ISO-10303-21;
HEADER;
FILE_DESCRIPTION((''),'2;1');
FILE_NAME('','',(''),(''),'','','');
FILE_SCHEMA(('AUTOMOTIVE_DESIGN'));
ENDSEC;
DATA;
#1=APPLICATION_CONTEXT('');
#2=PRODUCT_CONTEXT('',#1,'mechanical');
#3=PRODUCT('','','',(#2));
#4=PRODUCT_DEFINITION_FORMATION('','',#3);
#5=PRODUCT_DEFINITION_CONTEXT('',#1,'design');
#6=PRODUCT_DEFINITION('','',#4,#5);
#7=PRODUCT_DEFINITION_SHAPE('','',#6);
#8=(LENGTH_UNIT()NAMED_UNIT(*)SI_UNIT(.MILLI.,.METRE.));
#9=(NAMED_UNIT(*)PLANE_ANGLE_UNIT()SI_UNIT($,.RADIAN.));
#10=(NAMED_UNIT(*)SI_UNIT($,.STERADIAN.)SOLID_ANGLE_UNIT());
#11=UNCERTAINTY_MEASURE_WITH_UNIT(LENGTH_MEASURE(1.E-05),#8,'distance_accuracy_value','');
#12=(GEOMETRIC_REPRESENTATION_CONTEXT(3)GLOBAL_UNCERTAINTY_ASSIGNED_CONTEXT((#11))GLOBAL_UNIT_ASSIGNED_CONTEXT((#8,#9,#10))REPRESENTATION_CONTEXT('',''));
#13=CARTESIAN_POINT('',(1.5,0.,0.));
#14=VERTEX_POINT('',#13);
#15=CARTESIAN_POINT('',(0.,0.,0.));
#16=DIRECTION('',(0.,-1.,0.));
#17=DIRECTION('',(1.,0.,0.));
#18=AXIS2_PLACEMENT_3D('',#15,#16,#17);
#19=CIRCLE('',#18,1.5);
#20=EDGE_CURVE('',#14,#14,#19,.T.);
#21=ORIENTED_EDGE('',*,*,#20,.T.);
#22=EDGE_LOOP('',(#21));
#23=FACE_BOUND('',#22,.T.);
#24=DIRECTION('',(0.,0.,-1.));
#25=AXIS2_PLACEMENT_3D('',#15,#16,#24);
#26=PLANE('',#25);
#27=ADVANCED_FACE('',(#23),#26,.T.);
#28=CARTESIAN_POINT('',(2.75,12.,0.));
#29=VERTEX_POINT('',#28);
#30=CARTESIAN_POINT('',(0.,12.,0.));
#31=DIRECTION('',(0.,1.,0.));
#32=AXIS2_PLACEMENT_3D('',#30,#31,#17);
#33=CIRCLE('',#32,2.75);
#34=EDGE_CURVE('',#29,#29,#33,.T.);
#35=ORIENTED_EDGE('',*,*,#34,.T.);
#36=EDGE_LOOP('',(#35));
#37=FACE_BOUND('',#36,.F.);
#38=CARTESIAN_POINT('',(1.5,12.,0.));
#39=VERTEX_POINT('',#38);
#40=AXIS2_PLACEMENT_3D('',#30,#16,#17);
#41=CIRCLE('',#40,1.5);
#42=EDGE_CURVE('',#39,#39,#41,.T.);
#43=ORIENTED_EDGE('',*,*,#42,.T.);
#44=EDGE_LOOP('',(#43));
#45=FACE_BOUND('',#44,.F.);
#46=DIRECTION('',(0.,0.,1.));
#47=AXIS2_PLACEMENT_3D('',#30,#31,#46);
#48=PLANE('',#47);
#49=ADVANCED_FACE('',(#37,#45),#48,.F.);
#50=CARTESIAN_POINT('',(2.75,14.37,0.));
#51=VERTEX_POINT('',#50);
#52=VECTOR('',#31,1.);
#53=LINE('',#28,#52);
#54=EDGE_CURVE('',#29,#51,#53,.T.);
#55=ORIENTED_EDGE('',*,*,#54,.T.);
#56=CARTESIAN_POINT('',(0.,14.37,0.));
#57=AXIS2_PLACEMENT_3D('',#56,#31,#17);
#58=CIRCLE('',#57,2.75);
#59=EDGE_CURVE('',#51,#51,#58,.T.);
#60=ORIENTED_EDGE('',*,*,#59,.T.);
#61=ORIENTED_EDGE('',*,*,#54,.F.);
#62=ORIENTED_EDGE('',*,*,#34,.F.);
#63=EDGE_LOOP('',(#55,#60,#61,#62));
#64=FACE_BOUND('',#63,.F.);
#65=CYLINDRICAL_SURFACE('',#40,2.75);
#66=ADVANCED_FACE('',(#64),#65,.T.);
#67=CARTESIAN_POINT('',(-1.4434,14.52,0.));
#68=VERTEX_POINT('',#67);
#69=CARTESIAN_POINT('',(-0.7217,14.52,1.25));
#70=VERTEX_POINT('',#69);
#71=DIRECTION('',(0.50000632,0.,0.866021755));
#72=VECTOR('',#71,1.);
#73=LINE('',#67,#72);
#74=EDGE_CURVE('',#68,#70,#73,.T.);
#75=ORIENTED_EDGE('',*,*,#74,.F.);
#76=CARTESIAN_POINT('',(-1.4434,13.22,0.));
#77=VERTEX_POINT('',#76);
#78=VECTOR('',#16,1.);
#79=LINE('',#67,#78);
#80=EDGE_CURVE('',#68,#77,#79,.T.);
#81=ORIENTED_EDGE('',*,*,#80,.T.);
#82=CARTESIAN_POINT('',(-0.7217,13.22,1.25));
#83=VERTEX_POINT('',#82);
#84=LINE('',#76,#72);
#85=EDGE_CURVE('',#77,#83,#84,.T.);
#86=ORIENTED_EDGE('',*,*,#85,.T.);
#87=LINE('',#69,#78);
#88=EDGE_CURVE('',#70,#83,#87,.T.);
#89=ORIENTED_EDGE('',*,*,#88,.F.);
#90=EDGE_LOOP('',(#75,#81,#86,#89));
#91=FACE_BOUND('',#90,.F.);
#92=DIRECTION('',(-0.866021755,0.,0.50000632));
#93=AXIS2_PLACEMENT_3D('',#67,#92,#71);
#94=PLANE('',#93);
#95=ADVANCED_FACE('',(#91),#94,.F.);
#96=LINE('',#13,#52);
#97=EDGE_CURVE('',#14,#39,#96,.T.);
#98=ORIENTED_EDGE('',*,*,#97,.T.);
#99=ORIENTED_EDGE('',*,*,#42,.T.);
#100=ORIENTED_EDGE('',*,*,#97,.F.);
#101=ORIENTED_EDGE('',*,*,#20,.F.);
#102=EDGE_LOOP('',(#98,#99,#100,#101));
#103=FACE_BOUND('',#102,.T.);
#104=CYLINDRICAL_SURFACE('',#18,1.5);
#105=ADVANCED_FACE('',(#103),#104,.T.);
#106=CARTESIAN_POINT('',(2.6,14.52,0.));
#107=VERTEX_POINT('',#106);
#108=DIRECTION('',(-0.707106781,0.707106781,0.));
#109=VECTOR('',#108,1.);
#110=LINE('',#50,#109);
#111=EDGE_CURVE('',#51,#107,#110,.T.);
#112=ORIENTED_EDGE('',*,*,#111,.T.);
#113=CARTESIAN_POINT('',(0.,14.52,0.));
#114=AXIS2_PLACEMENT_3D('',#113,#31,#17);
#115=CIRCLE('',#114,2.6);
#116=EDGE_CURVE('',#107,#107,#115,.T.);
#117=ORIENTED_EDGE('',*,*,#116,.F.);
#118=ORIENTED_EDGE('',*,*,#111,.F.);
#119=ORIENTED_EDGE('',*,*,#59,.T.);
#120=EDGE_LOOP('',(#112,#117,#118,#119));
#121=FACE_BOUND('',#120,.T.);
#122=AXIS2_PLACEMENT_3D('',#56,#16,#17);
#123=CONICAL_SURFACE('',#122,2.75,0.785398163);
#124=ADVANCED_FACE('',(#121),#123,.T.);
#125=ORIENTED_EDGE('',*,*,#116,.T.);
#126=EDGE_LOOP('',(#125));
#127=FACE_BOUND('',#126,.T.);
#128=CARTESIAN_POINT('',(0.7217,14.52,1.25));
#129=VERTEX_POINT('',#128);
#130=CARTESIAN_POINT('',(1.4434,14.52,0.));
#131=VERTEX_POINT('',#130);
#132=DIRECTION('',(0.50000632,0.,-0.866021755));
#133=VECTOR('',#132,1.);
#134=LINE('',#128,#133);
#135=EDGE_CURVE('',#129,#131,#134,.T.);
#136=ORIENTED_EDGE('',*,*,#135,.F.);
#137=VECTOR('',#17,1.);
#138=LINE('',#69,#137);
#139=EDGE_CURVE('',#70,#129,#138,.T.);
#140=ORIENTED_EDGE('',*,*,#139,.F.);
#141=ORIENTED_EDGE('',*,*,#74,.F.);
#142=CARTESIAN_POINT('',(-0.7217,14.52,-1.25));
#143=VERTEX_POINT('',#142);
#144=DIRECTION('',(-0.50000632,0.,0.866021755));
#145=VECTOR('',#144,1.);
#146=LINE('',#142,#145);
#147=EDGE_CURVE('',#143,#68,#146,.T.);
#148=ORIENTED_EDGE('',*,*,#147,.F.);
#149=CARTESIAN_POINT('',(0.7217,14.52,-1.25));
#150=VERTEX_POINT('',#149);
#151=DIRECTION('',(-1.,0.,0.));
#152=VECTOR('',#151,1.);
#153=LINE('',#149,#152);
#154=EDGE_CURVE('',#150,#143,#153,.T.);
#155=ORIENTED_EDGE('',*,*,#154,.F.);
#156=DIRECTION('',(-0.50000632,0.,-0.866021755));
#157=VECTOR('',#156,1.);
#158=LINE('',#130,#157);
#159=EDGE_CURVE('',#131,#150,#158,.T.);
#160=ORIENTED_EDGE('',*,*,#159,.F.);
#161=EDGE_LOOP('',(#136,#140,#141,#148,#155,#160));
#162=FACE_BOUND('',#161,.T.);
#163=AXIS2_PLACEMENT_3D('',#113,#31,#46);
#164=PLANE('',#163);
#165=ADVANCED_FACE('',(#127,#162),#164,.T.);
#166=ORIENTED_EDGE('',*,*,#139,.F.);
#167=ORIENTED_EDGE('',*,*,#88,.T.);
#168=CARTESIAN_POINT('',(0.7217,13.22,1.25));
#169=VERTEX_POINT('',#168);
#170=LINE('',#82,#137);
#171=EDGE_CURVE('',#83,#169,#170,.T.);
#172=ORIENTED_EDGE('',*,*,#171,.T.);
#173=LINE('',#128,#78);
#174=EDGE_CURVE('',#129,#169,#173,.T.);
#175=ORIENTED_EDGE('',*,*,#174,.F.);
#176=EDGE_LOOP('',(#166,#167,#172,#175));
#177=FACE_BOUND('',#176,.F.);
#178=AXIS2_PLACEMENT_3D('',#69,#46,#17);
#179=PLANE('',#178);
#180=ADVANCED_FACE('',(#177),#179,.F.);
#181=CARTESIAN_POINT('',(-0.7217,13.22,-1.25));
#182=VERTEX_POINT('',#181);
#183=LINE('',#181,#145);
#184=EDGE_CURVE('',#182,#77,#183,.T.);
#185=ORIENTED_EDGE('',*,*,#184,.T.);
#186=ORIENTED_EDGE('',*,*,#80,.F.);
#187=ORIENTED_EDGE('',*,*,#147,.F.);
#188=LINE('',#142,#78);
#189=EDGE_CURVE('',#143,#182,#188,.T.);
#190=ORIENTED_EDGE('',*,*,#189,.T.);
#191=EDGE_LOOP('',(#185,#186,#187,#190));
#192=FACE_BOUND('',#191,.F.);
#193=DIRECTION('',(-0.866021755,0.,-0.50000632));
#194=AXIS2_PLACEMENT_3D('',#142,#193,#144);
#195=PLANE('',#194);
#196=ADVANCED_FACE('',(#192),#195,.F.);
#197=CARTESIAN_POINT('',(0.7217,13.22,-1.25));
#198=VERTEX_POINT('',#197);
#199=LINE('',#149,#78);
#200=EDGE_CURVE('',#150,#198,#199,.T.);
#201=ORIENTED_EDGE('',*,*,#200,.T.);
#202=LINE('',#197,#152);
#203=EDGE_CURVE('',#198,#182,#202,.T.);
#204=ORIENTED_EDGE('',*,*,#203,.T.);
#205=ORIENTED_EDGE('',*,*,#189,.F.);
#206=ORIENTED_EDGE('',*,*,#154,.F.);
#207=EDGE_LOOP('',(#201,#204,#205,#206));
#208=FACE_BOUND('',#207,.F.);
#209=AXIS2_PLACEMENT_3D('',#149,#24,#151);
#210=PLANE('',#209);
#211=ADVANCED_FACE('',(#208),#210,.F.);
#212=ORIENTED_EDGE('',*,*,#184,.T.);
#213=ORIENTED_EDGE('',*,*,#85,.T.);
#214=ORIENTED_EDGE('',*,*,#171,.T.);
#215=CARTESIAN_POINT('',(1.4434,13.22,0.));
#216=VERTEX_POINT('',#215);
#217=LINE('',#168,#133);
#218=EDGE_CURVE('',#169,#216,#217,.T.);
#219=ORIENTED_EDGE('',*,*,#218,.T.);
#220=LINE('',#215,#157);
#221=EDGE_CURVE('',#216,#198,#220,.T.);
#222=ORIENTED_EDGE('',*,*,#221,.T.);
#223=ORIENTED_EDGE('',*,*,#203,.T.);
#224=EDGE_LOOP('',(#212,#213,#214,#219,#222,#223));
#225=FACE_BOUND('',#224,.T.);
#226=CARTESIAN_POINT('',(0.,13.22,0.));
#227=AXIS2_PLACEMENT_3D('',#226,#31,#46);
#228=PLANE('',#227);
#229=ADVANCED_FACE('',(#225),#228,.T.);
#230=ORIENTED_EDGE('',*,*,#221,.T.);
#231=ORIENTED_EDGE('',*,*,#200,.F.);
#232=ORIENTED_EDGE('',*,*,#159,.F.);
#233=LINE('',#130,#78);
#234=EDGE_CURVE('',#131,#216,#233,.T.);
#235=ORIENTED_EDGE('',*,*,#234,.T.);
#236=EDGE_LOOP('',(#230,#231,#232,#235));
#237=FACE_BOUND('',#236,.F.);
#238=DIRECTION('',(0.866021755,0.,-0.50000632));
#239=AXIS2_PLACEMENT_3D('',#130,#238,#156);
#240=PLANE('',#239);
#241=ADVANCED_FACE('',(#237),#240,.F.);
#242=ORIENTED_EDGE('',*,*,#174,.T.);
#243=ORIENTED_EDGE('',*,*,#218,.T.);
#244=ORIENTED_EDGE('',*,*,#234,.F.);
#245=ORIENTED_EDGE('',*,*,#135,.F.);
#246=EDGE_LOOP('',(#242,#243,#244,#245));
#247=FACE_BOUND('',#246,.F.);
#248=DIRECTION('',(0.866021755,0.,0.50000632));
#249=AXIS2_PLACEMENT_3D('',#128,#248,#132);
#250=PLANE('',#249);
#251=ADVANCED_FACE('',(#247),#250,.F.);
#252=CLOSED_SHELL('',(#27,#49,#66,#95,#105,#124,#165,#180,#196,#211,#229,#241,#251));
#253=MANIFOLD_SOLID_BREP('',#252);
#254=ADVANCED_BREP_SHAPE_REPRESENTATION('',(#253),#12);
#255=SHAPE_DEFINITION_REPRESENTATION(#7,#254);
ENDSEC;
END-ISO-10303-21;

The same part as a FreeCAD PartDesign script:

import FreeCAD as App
import Part
import Sketcher
Q = App.Units.Quantity


def edges_at(feature, points):
    """Names of the edges that pass closest to the given points."""
    edges = feature.Shape.Edges
    near = lambda p: min(range(len(edges)), key=lambda i: edges[i].distToShape(Part.Vertex(*p))[0])
    return sorted({f"Edge{near(p) + 1}" for p in points})


def add_polygon(sketch, points):
    """Adds a closed chain of lines whose ends are joined by coincident constraints."""
    first, n = sketch.GeometryCount, len(points)
    for a, b in zip(points, points[1:] + points[:1]):
        sketch.addGeometry(Part.LineSegment(App.Vector(*a, 0), App.Vector(*b, 0)), False)
    for i in range(n):
        sketch.addConstraint(Sketcher.Constraint("Coincident", first + i, 2, first + (i + 1) % n, 1))

doc = App.newDocument("Part")
body = doc.addObject("PartDesign::Body", "Body")

# Sketch on XZ plane
sketch1 = body.newObject("Sketcher::SketchObject", "Sketch")
sketch1.AttachmentSupport = (doc.getObject("XZ_Plane"), [""])
sketch1.MapMode = "FlatFace"
sketch1.addGeometry(Part.Circle(App.Vector(0, 0, 0), App.Vector(0, 0, 1), 1.5), False)
sketch1.addConstraint([
    Sketcher.Constraint("Coincident", 0, 3, -1, 1),
    Sketcher.Constraint("Diameter", 0, 3.0),
])
pad1 = body.newObject("PartDesign::Pad", "Pad")
pad1.Profile = sketch1
pad1.Length = 12
pad1.Reversed = True

# Sketch on XZ plane
sketch2 = body.newObject("Sketcher::SketchObject", "Sketch001")
sketch2.AttachmentSupport = (doc.getObject("XZ_Plane"), [""])
sketch2.MapMode = "FlatFace"
sketch2.AttachmentOffset = App.Placement(App.Vector(0, 0, -12), App.Rotation())
sketch2.addGeometry(Part.Circle(App.Vector(0, 0, 0), App.Vector(0, 0, 1), 2.8), False)
sketch2.addConstraint([
    Sketcher.Constraint("Coincident", 0, 3, -1, 1),
    Sketcher.Constraint("Diameter", 0, 5.5),
])
pad2 = body.newObject("PartDesign::Pad", "Pad001")
pad2.Profile = sketch2
pad2.Length = 2.52
pad2.Reversed = True

# Sketch on XZ plane
sketch3 = body.newObject("Sketcher::SketchObject", "Sketch002")
sketch3.AttachmentSupport = (doc.getObject("XZ_Plane"), [""])
sketch3.MapMode = "FlatFace"
sketch3.AttachmentOffset = App.Placement(App.Vector(0, 0, -14.52), App.Rotation())
add_polygon(sketch3, [(-1.4, 0), (-0.7, 1.2), (0.7, 1.2), (1.4, 0), (0.7, -1.2), (-0.7, -1.2)])  # lines 0-5
sketch3.addConstraint([
    Sketcher.Constraint("Horizontal", 1),
    Sketcher.Constraint("Horizontal", 4),
    Sketcher.Constraint("Symmetric", 0, 2, 3, 2, -1, 1),
    Sketcher.Constraint("Symmetric", 2, 2, 5, 2, -1, 1),
    Sketcher.Constraint("PointOnObject", 2, 2, -1),
    Sketcher.Constraint("Parallel", 2, 5),
    Sketcher.Constraint("Vertical", 1, 2, 3, 2),
    Sketcher.Constraint("Angle", 0, Q("59.9996 deg")),
    Sketcher.Constraint("DistanceY", 3, 2, 1, 2, 2.5),
    Sketcher.Constraint("DistanceX", 1, 1, 1, 2, 1.4434),
])
pocket1 = body.newObject("PartDesign::Pocket", "Pocket")
pocket1.Profile = sketch3
pocket1.Length = 1.3
pocket1.Reversed = True
doc.recompute()

chamfer = body.newObject("PartDesign::Chamfer", "Chamfer")
chamfer.Base = (pocket1, edges_at(pocket1, [(-2.75, 14.52, 0)]))
chamfer.Size = 0.15

doc.recompute()
